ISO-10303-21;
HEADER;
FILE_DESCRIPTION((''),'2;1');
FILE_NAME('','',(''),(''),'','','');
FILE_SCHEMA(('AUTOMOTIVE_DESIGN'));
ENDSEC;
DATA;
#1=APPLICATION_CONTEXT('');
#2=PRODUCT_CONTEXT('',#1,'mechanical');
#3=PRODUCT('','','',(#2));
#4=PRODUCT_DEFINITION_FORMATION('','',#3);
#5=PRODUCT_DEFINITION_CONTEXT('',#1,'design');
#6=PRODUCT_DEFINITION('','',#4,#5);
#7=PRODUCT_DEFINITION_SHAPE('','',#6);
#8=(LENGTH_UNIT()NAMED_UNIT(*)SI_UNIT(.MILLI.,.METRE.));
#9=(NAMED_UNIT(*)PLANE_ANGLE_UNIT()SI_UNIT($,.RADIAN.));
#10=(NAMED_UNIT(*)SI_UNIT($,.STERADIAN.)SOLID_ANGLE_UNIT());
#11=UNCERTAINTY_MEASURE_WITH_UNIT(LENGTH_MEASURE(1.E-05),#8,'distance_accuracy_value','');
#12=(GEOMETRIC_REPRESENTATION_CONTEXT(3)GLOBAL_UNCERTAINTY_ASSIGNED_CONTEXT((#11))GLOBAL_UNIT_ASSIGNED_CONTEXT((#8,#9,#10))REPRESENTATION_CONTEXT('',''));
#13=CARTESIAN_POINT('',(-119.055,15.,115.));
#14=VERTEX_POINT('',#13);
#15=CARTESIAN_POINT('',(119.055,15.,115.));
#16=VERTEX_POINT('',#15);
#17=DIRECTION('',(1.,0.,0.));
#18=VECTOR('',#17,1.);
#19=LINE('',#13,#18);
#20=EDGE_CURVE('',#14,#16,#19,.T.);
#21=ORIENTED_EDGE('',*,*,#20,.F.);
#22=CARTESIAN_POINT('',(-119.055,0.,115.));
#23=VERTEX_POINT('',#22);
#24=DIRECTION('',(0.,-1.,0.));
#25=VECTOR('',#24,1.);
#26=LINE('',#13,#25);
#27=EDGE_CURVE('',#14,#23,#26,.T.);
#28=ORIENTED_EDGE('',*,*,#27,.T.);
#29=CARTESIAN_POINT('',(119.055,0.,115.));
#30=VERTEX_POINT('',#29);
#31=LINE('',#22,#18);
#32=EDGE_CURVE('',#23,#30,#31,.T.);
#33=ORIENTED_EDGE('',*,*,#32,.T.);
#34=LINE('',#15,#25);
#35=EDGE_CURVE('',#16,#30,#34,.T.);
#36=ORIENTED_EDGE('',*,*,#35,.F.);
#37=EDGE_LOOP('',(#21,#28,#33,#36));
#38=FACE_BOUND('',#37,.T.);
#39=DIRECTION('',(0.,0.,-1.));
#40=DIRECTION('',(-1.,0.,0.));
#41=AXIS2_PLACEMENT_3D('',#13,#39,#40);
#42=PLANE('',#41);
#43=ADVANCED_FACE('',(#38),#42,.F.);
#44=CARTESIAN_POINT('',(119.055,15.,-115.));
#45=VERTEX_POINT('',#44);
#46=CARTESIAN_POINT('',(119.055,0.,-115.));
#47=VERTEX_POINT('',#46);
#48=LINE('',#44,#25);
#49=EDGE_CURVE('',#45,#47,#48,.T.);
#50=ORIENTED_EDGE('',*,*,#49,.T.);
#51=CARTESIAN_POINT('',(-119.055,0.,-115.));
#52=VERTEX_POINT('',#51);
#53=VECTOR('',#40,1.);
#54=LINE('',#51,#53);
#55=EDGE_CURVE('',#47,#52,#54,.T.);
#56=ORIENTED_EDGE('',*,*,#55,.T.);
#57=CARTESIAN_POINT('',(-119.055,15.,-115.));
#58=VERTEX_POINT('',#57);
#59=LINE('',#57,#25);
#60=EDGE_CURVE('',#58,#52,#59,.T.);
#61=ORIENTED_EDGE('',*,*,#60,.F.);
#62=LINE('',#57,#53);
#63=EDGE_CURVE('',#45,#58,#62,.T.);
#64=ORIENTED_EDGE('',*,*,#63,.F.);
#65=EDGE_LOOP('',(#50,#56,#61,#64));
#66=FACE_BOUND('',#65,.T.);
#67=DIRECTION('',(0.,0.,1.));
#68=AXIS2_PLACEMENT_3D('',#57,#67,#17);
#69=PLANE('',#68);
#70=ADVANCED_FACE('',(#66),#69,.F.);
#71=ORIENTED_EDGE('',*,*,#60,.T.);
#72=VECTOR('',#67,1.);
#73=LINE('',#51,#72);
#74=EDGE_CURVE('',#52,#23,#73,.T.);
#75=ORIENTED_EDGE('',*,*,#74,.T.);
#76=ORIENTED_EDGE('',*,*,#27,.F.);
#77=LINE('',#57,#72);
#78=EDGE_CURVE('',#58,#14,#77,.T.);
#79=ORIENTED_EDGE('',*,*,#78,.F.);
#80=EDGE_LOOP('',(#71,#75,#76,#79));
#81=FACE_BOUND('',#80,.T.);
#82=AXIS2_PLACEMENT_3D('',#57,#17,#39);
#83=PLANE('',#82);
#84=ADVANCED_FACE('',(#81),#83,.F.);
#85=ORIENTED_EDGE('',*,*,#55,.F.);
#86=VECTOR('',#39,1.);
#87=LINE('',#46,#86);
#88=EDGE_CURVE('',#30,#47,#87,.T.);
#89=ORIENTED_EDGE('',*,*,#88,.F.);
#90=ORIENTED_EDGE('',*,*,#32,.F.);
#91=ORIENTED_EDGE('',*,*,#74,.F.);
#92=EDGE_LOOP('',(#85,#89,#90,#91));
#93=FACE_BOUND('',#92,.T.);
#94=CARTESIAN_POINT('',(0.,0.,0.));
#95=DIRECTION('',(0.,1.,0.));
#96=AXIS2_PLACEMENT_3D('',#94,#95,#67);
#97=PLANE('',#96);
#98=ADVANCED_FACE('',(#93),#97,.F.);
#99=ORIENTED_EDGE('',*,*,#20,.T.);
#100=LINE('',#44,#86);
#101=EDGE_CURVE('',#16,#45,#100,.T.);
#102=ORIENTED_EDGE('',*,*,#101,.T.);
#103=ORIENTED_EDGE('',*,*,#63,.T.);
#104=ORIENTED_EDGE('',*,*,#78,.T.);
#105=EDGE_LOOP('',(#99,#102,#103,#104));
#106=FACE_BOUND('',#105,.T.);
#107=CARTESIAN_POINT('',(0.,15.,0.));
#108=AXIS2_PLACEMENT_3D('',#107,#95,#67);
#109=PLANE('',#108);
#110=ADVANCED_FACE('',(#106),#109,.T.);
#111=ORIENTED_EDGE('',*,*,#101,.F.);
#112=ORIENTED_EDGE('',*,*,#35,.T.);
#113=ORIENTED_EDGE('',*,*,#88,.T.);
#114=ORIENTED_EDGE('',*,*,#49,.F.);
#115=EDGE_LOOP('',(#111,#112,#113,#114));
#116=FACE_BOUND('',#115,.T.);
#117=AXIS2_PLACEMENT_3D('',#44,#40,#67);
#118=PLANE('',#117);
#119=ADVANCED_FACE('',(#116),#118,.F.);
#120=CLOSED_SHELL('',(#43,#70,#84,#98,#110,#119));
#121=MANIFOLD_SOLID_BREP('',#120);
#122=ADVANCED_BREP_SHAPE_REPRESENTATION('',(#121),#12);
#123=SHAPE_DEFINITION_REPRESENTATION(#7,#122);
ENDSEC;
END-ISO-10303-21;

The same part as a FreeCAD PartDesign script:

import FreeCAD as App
import Part
import Sketcher
from FreeCAD import Vector

doc = App.newDocument("Part")
body = doc.addObject("PartDesign::Body", "Body")

# Sketch on XZ plane
sketch1 = body.newObject("Sketcher::SketchObject", "Sketch")
sketch1.AttachmentSupport = (doc.getObject("XZ_Plane"), [""])
sketch1.MapMode = "FlatFace"
sketch1.addGeometry([
    Part.LineSegment(Vector(-119.055, -115, 0), Vector(-119.055, 115, 0)),
    Part.LineSegment(Vector(-119.055, 115, 0), Vector(119.055, 115, 0)),
    Part.LineSegment(Vector(119.055, 115, 0), Vector(119.055, -115, 0)),
    Part.LineSegment(Vector(119.055, -115, 0), Vector(-119.055, -115, 0)),
], False)
sketch1.addConstraint([
    Sketcher.Constraint("Coincident", 0, 2, 1, 1),
    Sketcher.Constraint("Coincident", 1, 2, 2, 1),
    Sketcher.Constraint("Coincident", 2, 2, 3, 1),
    Sketcher.Constraint("Coincident", 3, 2, 0, 1),
    Sketcher.Constraint("Vertical", 0),
    Sketcher.Constraint("Horizontal", 1),
    Sketcher.Constraint("Vertical", 2),
    Sketcher.Constraint("Horizontal", 3),
    Sketcher.Constraint("Symmetric", 0, 2, 2, 2, -1, 1),
    Sketcher.Constraint("DistanceY", 0, 1, 0, 2, 230.0),
    Sketcher.Constraint("DistanceX", 1, 1, 1, 2, 238.11),
])
pad1 = body.newObject("PartDesign::Pad", "Pad")
pad1.Profile = sketch1
pad1.Length = 15
pad1.Reversed = True

doc.recompute()
